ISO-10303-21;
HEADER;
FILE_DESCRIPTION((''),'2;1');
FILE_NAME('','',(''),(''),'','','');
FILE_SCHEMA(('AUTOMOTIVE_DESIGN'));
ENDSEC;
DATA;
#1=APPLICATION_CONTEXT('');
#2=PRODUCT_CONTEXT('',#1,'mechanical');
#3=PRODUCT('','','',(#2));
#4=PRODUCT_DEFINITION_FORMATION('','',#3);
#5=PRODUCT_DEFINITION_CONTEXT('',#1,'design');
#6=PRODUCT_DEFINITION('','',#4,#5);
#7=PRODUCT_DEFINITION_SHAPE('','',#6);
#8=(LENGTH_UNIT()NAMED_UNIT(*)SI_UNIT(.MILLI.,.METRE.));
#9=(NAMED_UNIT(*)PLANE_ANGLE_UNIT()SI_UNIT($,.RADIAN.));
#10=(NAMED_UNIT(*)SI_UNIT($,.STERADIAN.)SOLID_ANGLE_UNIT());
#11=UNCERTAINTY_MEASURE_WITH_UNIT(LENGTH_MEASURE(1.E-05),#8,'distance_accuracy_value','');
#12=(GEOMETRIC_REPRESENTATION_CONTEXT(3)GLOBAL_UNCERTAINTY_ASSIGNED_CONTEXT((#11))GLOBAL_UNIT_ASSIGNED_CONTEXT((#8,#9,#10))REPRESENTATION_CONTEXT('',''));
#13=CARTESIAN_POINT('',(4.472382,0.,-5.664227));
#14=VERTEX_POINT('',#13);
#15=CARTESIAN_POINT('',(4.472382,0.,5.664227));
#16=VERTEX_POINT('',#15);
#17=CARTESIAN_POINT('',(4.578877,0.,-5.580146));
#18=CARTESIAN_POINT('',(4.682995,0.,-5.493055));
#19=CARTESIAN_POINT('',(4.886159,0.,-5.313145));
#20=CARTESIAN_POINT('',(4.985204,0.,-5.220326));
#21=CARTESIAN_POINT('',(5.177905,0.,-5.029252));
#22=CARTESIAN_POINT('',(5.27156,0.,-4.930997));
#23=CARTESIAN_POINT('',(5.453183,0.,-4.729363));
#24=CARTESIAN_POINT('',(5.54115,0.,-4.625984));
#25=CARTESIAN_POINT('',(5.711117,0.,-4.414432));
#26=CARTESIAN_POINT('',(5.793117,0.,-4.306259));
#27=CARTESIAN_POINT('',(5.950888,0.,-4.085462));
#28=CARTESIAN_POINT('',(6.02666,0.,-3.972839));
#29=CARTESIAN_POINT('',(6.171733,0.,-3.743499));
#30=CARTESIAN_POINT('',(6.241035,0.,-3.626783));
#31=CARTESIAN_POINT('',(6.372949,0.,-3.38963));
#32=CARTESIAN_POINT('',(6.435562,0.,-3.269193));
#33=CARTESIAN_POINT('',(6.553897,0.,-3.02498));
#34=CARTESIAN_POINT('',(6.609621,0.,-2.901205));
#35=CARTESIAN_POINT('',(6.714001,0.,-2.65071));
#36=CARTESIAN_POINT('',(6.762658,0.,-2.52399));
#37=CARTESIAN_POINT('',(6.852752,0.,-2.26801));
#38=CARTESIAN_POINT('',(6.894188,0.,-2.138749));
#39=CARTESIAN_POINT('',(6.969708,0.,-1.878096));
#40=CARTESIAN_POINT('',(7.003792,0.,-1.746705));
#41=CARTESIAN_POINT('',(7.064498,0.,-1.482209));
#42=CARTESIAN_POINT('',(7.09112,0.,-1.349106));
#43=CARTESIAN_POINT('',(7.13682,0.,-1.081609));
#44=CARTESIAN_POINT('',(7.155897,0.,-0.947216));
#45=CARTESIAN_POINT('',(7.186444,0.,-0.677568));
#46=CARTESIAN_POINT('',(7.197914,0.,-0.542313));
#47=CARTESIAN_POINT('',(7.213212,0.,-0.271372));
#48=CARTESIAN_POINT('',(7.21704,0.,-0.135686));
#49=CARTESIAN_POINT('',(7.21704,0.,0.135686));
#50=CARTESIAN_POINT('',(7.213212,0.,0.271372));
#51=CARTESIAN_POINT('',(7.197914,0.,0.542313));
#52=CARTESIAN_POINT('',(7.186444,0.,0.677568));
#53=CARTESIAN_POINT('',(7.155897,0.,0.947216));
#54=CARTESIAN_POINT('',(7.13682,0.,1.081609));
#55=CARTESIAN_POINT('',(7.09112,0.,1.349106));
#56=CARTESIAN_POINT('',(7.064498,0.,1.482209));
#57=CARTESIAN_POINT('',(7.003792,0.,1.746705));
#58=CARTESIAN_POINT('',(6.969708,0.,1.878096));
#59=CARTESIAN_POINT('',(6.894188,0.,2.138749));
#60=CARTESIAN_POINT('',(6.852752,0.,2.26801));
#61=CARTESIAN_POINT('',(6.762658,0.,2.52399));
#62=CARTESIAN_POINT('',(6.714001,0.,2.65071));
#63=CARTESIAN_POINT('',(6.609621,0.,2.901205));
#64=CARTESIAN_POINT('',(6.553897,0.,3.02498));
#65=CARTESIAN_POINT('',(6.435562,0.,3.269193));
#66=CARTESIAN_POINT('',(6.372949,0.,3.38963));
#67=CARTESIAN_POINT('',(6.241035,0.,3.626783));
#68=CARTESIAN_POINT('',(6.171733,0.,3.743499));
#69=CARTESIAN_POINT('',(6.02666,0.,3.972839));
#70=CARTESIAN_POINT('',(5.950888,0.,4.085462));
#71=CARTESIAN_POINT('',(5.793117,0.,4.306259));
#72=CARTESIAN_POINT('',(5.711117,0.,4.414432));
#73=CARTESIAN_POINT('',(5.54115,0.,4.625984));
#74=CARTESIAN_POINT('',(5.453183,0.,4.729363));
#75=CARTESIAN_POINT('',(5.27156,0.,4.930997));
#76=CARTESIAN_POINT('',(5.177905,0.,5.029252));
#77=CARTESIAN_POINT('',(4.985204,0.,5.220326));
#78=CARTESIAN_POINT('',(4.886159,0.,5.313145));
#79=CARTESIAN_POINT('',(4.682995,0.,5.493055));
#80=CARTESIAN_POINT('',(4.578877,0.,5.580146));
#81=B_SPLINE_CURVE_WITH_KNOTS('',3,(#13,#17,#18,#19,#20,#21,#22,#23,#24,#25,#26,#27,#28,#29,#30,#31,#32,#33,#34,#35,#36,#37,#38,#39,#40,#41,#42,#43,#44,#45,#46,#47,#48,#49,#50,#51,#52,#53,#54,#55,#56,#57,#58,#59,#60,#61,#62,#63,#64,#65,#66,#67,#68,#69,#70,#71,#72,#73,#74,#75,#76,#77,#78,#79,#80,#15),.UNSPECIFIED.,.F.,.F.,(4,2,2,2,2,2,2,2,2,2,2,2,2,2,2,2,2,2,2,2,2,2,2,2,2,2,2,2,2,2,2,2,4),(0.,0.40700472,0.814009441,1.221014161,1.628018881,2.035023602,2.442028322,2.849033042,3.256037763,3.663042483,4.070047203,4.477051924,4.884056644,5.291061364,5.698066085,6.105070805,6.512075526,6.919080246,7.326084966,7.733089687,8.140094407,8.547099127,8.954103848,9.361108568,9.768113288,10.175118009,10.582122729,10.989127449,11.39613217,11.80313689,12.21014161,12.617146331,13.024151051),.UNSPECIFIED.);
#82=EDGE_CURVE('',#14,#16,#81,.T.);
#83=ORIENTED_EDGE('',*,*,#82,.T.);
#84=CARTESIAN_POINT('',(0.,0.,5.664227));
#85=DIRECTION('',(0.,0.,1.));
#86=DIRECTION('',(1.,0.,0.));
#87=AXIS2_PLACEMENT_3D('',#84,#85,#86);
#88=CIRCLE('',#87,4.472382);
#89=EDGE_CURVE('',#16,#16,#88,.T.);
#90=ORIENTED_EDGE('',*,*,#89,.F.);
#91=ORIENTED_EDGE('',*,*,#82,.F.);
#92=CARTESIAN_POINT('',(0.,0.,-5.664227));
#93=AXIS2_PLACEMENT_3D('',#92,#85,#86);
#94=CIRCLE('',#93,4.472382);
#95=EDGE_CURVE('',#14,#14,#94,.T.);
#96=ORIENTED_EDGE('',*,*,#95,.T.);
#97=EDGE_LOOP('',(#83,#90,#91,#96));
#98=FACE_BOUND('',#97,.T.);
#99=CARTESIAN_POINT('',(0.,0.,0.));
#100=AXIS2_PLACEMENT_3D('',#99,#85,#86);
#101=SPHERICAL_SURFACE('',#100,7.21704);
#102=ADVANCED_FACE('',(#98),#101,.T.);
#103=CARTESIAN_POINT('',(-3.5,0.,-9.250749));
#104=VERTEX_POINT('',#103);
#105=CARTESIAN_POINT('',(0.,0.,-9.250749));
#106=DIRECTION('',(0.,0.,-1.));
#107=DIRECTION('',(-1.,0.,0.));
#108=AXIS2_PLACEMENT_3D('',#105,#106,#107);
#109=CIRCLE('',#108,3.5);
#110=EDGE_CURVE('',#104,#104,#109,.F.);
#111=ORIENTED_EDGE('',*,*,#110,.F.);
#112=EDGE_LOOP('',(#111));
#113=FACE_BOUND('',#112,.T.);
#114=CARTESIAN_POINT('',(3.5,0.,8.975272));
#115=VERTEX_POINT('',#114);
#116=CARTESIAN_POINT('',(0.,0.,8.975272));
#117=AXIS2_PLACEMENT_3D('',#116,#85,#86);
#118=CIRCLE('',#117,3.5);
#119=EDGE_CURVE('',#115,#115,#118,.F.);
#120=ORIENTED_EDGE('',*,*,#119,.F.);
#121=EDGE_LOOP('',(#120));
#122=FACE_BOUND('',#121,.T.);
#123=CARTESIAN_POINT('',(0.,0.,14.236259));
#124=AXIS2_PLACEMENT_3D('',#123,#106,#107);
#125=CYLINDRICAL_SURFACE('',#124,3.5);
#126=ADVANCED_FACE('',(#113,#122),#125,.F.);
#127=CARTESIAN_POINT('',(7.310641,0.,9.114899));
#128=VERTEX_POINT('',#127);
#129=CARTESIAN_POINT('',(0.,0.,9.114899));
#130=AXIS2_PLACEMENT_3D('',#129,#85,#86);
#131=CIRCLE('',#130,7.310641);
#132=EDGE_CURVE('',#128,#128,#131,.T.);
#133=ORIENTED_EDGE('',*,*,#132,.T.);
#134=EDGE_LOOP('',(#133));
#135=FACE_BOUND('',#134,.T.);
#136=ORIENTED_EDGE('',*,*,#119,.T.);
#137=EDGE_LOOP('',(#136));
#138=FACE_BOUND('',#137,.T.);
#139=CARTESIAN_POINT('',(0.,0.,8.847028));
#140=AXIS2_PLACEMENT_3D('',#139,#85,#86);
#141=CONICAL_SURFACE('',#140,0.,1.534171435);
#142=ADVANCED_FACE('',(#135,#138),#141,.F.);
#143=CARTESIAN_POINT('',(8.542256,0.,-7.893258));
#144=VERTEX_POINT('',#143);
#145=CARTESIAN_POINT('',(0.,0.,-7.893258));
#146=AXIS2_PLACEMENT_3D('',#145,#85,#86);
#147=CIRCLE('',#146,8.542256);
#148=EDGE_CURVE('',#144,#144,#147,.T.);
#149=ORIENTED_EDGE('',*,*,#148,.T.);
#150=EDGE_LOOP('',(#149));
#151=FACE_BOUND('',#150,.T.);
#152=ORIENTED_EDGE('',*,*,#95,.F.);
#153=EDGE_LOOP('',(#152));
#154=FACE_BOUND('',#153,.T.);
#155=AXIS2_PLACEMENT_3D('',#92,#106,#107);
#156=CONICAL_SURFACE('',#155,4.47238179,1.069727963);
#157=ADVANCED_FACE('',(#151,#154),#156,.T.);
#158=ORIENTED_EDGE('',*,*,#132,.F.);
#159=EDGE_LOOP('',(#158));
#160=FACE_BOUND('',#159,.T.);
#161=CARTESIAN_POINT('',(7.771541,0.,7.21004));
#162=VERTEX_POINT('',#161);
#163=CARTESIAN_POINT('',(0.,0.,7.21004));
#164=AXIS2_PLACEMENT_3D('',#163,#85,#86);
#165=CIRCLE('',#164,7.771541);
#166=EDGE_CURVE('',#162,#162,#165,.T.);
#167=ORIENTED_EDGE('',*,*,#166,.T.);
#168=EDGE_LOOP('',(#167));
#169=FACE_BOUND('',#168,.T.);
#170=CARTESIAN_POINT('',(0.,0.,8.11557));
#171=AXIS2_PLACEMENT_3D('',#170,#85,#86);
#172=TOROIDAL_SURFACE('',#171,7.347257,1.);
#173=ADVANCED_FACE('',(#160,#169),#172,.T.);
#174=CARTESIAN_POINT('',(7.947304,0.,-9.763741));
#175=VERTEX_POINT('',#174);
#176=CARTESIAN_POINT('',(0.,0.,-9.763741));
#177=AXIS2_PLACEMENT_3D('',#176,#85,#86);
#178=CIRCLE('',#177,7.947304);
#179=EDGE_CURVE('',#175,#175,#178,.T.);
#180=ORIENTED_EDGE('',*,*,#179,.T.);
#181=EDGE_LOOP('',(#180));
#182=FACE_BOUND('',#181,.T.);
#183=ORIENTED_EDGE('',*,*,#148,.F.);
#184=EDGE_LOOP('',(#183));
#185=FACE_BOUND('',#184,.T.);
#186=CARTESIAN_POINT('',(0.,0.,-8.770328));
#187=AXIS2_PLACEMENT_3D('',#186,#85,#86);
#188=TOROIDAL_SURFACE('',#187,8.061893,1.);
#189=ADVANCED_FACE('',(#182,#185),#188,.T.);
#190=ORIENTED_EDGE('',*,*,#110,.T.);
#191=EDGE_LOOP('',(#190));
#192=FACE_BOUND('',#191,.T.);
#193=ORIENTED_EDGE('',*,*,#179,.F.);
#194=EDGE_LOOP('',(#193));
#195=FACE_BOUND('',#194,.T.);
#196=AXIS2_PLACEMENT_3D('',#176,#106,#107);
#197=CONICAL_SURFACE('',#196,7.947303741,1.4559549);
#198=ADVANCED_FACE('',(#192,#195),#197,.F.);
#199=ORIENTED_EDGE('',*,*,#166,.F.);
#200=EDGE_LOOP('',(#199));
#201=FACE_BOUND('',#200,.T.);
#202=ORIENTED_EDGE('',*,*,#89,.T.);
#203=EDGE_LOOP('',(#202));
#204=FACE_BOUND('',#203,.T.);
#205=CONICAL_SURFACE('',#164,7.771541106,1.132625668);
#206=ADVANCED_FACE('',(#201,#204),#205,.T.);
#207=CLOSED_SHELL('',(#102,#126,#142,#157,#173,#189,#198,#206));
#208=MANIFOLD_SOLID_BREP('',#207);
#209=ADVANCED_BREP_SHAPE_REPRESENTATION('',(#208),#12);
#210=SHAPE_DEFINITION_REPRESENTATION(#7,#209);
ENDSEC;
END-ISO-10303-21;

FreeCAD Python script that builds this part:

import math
import FreeCAD as App
import Part
import Sketcher
from FreeCAD import Vector

doc = App.newDocument("Part")
body = doc.addObject("PartDesign::Body", "Body")

# Sketch on XZ plane
sketch1 = body.newObject("Sketcher::SketchObject", "Sketch")
sketch1.AttachmentSupport = (doc.getObject("XZ_Plane"), [""])
sketch1.MapMode = "FlatFace"
sketch1.addGeometry([
    Part.LineSegment(Vector(4.5, -5.7, 0), Vector(8.5, -7.9, 0)),  # 0
    Part.ArcOfCircle(Part.Circle(Vector(8.1, -8.8, 0), Vector(0, 0, 1), 1), math.radians(-97), math.radians(61)),  # 1
    Part.LineSegment(Vector(7.9, -9.8, 0), Vector(0, -8.8, 0)),  # 2
    Part.LineSegment(Vector(0, -8.8, 0), Vector(0, 8.8, 0)),  # 3
    Part.LineSegment(Vector(0, 8.8, 0), Vector(7.3, 9.1, 0)),  # 4
    Part.ArcOfCircle(Part.Circle(Vector(7.3, 8.1, 0), Vector(0, 0, 1), 1), math.radians(-65), math.radians(92)),  # 5
    Part.LineSegment(Vector(7.8, 7.2, 0), Vector(4.5, 5.7, 0)),  # 6
    Part.ArcOfCircle(Part.Circle(Vector(0, 0, 0), Vector(0, 0, 1), 7.2), math.radians(-52), math.radians(52)),  # 7
], False)
sketch1.addConstraint([
    Sketcher.Constraint("Tangent", 0, 2, 1, 2),
    Sketcher.Constraint("Tangent", 1, 1, 2, 1),
    Sketcher.Constraint("Coincident", 2, 2, 3, 1),
    Sketcher.Constraint("Coincident", 3, 2, 4, 1),
    Sketcher.Constraint("Tangent", 4, 2, 5, 2),
    Sketcher.Constraint("Tangent", 5, 1, 6, 1),
    Sketcher.Constraint("Coincident", 6, 2, 7, 2),
    Sketcher.Constraint("Coincident", 7, 1, 0, 1),
    Sketcher.Constraint("Vertical", 3),
    Sketcher.Constraint("Coincident", 7, 3, -1, 1),
    Sketcher.Constraint("Equal", 1, 5),
    Sketcher.Constraint("Symmetric", 2, 2, 3, 2, -1, 1),
    Sketcher.Constraint("Vertical", 6, 2, 7, 1),
    Sketcher.Constraint("Radius", 1, 1.0),
    Sketcher.Constraint("Distance", 2, 8.0),
    Sketcher.Constraint("Radius", 7, 7.21704),
    Sketcher.Constraint("DistanceX", 5, 3, 0, 2, 1.194998),
    Sketcher.Constraint("DistanceY", -1, 1, 4, 2, 9.114899),
    Sketcher.Constraint("DistanceY", 2, 2, 1, 3, 0.0767),
    Sketcher.Constraint("DistanceX", 4, 2, 5, 1, 0.4609),
    Sketcher.Constraint("DistanceY", 0, 2, 5, 1, 15.103298),
])
revolution = body.newObject("PartDesign::Revolution", "Revolution")
revolution.Profile = sketch1
revolution.ReferenceAxis = (sketch1, ["V_Axis"])
revolution.Angle = 360

# Sketch on XY plane
sketch2 = body.newObject("Sketcher::SketchObject", "Sketch001")
sketch2.AttachmentSupport = (doc.getObject("XY_Plane"), [""])
sketch2.MapMode = "FlatFace"
sketch2.AttachmentOffset = App.Placement(Vector(0, 0, -9.763741), App.Rotation())
sketch2.addGeometry(Part.Circle(Vector(0, 0, 0), Vector(0, 0, 1), 3.5), False)
sketch2.addConstraint([
    Sketcher.Constraint("Coincident", 0, 3, -1, 1),
    Sketcher.Constraint("Diameter", 0, 7.0),
])
pocket1 = body.newObject("PartDesign::Pocket", "Pocket")
pocket1.Profile = sketch2
pocket1.Length = 24
pocket1.Reversed = True

doc.recompute()
